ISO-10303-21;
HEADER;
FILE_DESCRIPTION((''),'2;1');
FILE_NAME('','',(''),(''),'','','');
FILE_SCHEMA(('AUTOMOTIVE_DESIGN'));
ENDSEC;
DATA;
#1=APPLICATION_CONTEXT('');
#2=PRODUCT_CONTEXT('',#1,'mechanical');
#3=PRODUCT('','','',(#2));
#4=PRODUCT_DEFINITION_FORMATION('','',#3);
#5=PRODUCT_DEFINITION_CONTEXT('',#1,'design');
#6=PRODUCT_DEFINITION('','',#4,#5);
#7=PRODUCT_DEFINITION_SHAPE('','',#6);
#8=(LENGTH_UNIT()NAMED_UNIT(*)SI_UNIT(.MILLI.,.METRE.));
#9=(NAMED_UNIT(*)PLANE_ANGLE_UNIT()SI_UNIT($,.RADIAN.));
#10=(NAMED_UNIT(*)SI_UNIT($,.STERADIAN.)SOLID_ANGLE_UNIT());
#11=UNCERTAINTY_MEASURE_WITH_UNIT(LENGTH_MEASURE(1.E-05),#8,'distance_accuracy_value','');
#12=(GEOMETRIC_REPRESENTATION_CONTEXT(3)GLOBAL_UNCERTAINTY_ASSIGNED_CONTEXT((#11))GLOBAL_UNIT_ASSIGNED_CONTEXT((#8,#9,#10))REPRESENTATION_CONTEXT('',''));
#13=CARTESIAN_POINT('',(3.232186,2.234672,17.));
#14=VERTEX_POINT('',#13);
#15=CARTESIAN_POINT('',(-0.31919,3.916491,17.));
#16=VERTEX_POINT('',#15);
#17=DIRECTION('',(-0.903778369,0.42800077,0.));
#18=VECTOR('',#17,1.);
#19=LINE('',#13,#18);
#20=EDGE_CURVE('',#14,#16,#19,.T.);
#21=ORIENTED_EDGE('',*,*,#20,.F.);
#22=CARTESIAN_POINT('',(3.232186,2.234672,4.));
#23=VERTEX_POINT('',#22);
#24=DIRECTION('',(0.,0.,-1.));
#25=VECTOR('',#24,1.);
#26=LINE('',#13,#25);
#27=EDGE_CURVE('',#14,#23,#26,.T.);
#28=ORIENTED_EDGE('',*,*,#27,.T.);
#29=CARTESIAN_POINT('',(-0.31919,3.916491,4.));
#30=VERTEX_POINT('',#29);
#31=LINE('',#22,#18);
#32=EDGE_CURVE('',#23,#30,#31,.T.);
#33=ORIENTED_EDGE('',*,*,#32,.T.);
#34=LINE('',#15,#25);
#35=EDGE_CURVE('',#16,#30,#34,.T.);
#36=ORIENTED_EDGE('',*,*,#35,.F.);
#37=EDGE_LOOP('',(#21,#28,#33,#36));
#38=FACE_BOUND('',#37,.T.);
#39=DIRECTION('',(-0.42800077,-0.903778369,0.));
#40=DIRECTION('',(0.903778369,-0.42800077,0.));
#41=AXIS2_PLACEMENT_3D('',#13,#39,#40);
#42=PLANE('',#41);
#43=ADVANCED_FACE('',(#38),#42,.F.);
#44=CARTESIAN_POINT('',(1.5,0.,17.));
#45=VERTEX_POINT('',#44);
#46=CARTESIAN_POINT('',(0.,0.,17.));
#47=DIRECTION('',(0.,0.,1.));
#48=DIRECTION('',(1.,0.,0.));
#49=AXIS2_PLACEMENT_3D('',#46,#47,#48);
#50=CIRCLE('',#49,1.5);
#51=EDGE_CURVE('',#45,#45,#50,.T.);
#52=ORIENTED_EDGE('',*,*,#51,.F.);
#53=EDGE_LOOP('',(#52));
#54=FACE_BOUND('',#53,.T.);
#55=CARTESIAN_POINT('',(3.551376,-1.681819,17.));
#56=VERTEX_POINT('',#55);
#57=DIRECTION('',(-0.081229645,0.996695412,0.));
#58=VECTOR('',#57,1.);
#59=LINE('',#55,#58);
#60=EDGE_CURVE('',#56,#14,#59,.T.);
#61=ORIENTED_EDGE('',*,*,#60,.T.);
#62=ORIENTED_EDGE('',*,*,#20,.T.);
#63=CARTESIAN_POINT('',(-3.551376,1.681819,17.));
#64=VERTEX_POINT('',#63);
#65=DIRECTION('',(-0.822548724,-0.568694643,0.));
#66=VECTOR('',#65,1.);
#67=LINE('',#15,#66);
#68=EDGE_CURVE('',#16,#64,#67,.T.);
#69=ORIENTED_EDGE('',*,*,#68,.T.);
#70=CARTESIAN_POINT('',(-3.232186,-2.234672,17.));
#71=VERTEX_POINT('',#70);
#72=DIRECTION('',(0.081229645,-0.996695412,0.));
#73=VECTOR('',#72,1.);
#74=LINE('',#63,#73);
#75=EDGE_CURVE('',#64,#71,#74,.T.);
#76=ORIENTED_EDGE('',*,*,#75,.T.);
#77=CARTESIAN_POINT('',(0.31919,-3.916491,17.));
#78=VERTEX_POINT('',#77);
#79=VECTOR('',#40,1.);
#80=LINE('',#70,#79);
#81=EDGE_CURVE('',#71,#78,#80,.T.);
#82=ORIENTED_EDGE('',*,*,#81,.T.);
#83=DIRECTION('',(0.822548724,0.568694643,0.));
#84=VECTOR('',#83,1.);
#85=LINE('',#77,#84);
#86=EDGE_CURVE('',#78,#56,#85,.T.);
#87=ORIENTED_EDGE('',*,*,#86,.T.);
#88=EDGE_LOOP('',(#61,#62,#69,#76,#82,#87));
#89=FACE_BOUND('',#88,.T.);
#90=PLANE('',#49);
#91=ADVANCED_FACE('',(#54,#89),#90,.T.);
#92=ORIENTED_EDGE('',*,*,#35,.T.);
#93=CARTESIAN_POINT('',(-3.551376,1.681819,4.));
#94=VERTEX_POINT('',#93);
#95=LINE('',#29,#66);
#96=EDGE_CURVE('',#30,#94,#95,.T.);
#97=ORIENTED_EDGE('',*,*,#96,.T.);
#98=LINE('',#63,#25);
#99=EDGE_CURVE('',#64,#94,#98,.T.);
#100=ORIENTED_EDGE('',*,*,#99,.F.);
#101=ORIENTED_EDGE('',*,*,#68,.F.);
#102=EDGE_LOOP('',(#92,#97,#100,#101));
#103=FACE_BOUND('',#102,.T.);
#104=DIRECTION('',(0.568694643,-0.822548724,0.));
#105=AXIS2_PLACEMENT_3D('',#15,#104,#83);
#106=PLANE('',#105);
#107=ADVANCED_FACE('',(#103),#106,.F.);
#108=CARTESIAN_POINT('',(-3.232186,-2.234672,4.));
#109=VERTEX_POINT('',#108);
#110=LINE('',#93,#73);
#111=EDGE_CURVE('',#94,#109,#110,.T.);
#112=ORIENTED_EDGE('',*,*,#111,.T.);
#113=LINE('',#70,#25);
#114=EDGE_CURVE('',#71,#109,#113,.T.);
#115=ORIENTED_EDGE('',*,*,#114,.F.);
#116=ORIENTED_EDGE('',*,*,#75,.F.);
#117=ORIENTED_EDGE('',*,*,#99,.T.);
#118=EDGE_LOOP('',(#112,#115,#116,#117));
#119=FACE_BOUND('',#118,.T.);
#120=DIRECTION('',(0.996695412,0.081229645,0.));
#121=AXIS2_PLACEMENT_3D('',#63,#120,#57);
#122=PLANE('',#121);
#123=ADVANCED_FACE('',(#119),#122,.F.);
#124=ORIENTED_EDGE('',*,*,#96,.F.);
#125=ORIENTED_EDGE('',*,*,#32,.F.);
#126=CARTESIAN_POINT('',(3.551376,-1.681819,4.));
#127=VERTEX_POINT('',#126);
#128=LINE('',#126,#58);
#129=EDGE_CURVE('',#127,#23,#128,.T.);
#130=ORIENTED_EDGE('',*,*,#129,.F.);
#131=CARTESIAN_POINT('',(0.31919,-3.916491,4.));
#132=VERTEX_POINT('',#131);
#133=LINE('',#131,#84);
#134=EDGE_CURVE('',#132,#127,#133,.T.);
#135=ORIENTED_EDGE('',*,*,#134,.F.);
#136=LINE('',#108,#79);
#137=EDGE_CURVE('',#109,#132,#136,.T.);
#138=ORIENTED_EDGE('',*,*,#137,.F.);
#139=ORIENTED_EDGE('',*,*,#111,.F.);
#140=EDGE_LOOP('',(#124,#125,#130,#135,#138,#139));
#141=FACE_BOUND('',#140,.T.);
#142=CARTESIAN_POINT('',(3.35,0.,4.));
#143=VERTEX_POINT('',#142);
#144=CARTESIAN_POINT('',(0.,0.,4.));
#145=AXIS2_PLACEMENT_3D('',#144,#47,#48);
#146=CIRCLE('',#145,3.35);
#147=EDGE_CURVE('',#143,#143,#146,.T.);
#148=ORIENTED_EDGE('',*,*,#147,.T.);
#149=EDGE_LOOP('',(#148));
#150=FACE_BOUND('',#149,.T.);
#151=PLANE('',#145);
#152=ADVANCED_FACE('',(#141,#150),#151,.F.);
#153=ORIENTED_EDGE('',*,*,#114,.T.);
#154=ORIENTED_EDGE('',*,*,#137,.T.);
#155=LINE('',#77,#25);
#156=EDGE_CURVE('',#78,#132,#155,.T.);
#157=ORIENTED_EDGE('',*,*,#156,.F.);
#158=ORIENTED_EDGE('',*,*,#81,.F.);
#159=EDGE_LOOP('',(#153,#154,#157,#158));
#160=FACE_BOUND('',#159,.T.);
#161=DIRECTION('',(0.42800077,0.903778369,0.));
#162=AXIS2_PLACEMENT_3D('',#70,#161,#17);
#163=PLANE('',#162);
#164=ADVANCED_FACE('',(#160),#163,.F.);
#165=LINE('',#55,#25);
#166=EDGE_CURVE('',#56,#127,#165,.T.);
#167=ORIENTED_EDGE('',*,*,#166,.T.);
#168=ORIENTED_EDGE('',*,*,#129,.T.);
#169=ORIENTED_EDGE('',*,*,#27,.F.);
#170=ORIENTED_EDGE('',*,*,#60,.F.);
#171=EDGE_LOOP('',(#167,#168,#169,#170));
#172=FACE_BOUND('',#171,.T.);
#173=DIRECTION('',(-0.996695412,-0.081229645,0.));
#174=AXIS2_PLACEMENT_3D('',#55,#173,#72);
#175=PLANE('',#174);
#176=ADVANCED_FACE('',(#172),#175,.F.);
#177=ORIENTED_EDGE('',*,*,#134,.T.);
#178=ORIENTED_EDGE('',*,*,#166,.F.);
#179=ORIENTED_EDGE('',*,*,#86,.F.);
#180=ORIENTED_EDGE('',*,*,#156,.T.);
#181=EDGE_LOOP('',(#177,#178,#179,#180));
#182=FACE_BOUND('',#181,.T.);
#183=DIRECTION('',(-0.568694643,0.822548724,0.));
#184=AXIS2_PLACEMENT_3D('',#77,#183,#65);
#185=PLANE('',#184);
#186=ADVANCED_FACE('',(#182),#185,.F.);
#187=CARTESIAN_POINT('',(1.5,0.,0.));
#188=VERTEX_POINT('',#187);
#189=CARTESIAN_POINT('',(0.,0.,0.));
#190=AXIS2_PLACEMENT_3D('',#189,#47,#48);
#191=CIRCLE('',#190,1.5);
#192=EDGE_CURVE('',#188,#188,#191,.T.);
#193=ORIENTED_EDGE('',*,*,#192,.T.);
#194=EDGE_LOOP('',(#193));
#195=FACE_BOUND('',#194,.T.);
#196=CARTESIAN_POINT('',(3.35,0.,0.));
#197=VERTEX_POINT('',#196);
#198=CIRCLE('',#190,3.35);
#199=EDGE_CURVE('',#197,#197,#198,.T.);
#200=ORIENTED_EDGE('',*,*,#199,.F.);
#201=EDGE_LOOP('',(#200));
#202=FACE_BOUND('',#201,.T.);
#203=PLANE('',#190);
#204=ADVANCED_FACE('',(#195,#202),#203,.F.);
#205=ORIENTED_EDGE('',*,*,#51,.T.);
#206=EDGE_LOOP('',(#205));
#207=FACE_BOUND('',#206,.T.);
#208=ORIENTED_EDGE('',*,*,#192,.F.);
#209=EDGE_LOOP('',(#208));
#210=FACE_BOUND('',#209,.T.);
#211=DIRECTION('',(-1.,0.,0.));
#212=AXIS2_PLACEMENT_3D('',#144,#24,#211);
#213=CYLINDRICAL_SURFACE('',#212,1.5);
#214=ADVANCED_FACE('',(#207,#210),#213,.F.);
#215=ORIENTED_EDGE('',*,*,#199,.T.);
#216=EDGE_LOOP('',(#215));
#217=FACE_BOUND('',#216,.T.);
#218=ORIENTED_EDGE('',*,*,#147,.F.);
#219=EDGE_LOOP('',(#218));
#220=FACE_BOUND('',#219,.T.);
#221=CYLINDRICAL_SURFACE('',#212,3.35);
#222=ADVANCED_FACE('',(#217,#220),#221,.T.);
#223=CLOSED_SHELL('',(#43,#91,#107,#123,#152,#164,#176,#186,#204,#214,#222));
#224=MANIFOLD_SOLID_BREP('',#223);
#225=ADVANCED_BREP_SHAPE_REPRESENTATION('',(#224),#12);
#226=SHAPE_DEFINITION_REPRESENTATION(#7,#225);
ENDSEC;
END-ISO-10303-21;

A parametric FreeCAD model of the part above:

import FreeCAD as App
import Part
import Sketcher
from FreeCAD import Vector
Q = App.Units.Quantity


def add_polygon(sketch, points):
    """Adds a closed chain of lines whose ends are joined by coincident constraints."""
    first, n = sketch.GeometryCount, len(points)
    for a, b in zip(points, points[1:] + points[:1]):
        sketch.addGeometry(Part.LineSegment(App.Vector(*a, 0), App.Vector(*b, 0)), False)
    for i in range(n):
        sketch.addConstraint(Sketcher.Constraint("Coincident", first + i, 2, first + (i + 1) % n, 1))

doc = App.newDocument("Part")
body = doc.addObject("PartDesign::Body", "Body")

# Sketch on XY plane
sketch1 = doc.addObject("Sketcher::SketchObject", "Sketch")
body.addObject(sketch1)
sketch1.AttachmentSupport = (doc.XY_Plane, [""])
sketch1.MapMode = "FlatFace"
sketch1.addGeometry(Part.Circle(Vector(0, 0, 0), Vector(0, 0, 1), 3.35), False)
sketch1.addGeometry(Part.Circle(Vector(0, 0, 0), Vector(0, 0, 1), 1.5), False)
sketch1.addConstraint(Sketcher.Constraint("Coincident", 0, 3, -1, 1))
sketch1.addConstraint(Sketcher.Constraint("Coincident", 1, 3, -1, 1))
sketch1.addConstraint(Sketcher.Constraint("Diameter", 1, Q("3 mm")))
sketch1.addConstraint(Sketcher.Constraint("Diameter", 0, Q("6.7 mm")))
pad1 = doc.addObject("PartDesign::Pad", "Pad")
body.addObject(pad1)
pad1.Profile = sketch1
pad1.Length = 4

# Sketch on XY plane
sketch2 = doc.addObject("Sketcher::SketchObject", "Sketch001")
body.addObject(sketch2)
sketch2.AttachmentSupport = (doc.XY_Plane, [""])
sketch2.MapMode = "FlatFace"
sketch2.AttachmentOffset = App.Placement(Vector(0, 0, 4), App.Rotation())
add_polygon(sketch2, [(3.551376, -1.681819), (3.232186, 2.234672), (-0.31919, 3.916491), (-3.551376, 1.681819), (-3.232186, -2.234672), (0.31919, -3.916491)])  # lines 0-5
sketch2.addGeometry(Part.Circle(Vector(0, 0, 0), Vector(0, 0, 1), 1.5), False)  # 6
sketch2.addConstraint(Sketcher.Constraint("Coincident", 6, 3, -1, 1))
sketch2.addConstraint(Sketcher.Constraint("Symmetric", 0, 2, 3, 2, -1, 1))
sketch2.addConstraint(Sketcher.Constraint("Symmetric", 1, 2, 4, 2, -1, 1))
sketch2.addConstraint(Sketcher.Constraint("Symmetric", 2, 2, 5, 2, -1, 1))
sketch2.addConstraint(Sketcher.Constraint("Equal", 0, 1))
sketch2.addConstraint(Sketcher.Constraint("Equal", 1, 2))
sketch2.addConstraint(Sketcher.Constraint("Diameter", 6, Q("3 mm")))
sketch2.addConstraint(Sketcher.Constraint("DistanceX", 1, 2, -1, 1, Q("0.31919 mm")))
sketch2.addConstraint(Sketcher.Constraint("DistanceY", -1, 1, 1, 2, Q("3.916491 mm")))
sketch2.addConstraint(Sketcher.Constraint("DistanceY", -1, 1, 2, 2, Q("1.681819 mm")))
sketch2.addConstraint(Sketcher.Constraint("DistanceY", 0, 2, 1, 2, Q("1.681819 mm")))
pad2 = doc.addObject("PartDesign::Pad", "Pad001")
body.addObject(pad2)
pad2.Profile = sketch2
pad2.Length = 13

doc.recompute()
